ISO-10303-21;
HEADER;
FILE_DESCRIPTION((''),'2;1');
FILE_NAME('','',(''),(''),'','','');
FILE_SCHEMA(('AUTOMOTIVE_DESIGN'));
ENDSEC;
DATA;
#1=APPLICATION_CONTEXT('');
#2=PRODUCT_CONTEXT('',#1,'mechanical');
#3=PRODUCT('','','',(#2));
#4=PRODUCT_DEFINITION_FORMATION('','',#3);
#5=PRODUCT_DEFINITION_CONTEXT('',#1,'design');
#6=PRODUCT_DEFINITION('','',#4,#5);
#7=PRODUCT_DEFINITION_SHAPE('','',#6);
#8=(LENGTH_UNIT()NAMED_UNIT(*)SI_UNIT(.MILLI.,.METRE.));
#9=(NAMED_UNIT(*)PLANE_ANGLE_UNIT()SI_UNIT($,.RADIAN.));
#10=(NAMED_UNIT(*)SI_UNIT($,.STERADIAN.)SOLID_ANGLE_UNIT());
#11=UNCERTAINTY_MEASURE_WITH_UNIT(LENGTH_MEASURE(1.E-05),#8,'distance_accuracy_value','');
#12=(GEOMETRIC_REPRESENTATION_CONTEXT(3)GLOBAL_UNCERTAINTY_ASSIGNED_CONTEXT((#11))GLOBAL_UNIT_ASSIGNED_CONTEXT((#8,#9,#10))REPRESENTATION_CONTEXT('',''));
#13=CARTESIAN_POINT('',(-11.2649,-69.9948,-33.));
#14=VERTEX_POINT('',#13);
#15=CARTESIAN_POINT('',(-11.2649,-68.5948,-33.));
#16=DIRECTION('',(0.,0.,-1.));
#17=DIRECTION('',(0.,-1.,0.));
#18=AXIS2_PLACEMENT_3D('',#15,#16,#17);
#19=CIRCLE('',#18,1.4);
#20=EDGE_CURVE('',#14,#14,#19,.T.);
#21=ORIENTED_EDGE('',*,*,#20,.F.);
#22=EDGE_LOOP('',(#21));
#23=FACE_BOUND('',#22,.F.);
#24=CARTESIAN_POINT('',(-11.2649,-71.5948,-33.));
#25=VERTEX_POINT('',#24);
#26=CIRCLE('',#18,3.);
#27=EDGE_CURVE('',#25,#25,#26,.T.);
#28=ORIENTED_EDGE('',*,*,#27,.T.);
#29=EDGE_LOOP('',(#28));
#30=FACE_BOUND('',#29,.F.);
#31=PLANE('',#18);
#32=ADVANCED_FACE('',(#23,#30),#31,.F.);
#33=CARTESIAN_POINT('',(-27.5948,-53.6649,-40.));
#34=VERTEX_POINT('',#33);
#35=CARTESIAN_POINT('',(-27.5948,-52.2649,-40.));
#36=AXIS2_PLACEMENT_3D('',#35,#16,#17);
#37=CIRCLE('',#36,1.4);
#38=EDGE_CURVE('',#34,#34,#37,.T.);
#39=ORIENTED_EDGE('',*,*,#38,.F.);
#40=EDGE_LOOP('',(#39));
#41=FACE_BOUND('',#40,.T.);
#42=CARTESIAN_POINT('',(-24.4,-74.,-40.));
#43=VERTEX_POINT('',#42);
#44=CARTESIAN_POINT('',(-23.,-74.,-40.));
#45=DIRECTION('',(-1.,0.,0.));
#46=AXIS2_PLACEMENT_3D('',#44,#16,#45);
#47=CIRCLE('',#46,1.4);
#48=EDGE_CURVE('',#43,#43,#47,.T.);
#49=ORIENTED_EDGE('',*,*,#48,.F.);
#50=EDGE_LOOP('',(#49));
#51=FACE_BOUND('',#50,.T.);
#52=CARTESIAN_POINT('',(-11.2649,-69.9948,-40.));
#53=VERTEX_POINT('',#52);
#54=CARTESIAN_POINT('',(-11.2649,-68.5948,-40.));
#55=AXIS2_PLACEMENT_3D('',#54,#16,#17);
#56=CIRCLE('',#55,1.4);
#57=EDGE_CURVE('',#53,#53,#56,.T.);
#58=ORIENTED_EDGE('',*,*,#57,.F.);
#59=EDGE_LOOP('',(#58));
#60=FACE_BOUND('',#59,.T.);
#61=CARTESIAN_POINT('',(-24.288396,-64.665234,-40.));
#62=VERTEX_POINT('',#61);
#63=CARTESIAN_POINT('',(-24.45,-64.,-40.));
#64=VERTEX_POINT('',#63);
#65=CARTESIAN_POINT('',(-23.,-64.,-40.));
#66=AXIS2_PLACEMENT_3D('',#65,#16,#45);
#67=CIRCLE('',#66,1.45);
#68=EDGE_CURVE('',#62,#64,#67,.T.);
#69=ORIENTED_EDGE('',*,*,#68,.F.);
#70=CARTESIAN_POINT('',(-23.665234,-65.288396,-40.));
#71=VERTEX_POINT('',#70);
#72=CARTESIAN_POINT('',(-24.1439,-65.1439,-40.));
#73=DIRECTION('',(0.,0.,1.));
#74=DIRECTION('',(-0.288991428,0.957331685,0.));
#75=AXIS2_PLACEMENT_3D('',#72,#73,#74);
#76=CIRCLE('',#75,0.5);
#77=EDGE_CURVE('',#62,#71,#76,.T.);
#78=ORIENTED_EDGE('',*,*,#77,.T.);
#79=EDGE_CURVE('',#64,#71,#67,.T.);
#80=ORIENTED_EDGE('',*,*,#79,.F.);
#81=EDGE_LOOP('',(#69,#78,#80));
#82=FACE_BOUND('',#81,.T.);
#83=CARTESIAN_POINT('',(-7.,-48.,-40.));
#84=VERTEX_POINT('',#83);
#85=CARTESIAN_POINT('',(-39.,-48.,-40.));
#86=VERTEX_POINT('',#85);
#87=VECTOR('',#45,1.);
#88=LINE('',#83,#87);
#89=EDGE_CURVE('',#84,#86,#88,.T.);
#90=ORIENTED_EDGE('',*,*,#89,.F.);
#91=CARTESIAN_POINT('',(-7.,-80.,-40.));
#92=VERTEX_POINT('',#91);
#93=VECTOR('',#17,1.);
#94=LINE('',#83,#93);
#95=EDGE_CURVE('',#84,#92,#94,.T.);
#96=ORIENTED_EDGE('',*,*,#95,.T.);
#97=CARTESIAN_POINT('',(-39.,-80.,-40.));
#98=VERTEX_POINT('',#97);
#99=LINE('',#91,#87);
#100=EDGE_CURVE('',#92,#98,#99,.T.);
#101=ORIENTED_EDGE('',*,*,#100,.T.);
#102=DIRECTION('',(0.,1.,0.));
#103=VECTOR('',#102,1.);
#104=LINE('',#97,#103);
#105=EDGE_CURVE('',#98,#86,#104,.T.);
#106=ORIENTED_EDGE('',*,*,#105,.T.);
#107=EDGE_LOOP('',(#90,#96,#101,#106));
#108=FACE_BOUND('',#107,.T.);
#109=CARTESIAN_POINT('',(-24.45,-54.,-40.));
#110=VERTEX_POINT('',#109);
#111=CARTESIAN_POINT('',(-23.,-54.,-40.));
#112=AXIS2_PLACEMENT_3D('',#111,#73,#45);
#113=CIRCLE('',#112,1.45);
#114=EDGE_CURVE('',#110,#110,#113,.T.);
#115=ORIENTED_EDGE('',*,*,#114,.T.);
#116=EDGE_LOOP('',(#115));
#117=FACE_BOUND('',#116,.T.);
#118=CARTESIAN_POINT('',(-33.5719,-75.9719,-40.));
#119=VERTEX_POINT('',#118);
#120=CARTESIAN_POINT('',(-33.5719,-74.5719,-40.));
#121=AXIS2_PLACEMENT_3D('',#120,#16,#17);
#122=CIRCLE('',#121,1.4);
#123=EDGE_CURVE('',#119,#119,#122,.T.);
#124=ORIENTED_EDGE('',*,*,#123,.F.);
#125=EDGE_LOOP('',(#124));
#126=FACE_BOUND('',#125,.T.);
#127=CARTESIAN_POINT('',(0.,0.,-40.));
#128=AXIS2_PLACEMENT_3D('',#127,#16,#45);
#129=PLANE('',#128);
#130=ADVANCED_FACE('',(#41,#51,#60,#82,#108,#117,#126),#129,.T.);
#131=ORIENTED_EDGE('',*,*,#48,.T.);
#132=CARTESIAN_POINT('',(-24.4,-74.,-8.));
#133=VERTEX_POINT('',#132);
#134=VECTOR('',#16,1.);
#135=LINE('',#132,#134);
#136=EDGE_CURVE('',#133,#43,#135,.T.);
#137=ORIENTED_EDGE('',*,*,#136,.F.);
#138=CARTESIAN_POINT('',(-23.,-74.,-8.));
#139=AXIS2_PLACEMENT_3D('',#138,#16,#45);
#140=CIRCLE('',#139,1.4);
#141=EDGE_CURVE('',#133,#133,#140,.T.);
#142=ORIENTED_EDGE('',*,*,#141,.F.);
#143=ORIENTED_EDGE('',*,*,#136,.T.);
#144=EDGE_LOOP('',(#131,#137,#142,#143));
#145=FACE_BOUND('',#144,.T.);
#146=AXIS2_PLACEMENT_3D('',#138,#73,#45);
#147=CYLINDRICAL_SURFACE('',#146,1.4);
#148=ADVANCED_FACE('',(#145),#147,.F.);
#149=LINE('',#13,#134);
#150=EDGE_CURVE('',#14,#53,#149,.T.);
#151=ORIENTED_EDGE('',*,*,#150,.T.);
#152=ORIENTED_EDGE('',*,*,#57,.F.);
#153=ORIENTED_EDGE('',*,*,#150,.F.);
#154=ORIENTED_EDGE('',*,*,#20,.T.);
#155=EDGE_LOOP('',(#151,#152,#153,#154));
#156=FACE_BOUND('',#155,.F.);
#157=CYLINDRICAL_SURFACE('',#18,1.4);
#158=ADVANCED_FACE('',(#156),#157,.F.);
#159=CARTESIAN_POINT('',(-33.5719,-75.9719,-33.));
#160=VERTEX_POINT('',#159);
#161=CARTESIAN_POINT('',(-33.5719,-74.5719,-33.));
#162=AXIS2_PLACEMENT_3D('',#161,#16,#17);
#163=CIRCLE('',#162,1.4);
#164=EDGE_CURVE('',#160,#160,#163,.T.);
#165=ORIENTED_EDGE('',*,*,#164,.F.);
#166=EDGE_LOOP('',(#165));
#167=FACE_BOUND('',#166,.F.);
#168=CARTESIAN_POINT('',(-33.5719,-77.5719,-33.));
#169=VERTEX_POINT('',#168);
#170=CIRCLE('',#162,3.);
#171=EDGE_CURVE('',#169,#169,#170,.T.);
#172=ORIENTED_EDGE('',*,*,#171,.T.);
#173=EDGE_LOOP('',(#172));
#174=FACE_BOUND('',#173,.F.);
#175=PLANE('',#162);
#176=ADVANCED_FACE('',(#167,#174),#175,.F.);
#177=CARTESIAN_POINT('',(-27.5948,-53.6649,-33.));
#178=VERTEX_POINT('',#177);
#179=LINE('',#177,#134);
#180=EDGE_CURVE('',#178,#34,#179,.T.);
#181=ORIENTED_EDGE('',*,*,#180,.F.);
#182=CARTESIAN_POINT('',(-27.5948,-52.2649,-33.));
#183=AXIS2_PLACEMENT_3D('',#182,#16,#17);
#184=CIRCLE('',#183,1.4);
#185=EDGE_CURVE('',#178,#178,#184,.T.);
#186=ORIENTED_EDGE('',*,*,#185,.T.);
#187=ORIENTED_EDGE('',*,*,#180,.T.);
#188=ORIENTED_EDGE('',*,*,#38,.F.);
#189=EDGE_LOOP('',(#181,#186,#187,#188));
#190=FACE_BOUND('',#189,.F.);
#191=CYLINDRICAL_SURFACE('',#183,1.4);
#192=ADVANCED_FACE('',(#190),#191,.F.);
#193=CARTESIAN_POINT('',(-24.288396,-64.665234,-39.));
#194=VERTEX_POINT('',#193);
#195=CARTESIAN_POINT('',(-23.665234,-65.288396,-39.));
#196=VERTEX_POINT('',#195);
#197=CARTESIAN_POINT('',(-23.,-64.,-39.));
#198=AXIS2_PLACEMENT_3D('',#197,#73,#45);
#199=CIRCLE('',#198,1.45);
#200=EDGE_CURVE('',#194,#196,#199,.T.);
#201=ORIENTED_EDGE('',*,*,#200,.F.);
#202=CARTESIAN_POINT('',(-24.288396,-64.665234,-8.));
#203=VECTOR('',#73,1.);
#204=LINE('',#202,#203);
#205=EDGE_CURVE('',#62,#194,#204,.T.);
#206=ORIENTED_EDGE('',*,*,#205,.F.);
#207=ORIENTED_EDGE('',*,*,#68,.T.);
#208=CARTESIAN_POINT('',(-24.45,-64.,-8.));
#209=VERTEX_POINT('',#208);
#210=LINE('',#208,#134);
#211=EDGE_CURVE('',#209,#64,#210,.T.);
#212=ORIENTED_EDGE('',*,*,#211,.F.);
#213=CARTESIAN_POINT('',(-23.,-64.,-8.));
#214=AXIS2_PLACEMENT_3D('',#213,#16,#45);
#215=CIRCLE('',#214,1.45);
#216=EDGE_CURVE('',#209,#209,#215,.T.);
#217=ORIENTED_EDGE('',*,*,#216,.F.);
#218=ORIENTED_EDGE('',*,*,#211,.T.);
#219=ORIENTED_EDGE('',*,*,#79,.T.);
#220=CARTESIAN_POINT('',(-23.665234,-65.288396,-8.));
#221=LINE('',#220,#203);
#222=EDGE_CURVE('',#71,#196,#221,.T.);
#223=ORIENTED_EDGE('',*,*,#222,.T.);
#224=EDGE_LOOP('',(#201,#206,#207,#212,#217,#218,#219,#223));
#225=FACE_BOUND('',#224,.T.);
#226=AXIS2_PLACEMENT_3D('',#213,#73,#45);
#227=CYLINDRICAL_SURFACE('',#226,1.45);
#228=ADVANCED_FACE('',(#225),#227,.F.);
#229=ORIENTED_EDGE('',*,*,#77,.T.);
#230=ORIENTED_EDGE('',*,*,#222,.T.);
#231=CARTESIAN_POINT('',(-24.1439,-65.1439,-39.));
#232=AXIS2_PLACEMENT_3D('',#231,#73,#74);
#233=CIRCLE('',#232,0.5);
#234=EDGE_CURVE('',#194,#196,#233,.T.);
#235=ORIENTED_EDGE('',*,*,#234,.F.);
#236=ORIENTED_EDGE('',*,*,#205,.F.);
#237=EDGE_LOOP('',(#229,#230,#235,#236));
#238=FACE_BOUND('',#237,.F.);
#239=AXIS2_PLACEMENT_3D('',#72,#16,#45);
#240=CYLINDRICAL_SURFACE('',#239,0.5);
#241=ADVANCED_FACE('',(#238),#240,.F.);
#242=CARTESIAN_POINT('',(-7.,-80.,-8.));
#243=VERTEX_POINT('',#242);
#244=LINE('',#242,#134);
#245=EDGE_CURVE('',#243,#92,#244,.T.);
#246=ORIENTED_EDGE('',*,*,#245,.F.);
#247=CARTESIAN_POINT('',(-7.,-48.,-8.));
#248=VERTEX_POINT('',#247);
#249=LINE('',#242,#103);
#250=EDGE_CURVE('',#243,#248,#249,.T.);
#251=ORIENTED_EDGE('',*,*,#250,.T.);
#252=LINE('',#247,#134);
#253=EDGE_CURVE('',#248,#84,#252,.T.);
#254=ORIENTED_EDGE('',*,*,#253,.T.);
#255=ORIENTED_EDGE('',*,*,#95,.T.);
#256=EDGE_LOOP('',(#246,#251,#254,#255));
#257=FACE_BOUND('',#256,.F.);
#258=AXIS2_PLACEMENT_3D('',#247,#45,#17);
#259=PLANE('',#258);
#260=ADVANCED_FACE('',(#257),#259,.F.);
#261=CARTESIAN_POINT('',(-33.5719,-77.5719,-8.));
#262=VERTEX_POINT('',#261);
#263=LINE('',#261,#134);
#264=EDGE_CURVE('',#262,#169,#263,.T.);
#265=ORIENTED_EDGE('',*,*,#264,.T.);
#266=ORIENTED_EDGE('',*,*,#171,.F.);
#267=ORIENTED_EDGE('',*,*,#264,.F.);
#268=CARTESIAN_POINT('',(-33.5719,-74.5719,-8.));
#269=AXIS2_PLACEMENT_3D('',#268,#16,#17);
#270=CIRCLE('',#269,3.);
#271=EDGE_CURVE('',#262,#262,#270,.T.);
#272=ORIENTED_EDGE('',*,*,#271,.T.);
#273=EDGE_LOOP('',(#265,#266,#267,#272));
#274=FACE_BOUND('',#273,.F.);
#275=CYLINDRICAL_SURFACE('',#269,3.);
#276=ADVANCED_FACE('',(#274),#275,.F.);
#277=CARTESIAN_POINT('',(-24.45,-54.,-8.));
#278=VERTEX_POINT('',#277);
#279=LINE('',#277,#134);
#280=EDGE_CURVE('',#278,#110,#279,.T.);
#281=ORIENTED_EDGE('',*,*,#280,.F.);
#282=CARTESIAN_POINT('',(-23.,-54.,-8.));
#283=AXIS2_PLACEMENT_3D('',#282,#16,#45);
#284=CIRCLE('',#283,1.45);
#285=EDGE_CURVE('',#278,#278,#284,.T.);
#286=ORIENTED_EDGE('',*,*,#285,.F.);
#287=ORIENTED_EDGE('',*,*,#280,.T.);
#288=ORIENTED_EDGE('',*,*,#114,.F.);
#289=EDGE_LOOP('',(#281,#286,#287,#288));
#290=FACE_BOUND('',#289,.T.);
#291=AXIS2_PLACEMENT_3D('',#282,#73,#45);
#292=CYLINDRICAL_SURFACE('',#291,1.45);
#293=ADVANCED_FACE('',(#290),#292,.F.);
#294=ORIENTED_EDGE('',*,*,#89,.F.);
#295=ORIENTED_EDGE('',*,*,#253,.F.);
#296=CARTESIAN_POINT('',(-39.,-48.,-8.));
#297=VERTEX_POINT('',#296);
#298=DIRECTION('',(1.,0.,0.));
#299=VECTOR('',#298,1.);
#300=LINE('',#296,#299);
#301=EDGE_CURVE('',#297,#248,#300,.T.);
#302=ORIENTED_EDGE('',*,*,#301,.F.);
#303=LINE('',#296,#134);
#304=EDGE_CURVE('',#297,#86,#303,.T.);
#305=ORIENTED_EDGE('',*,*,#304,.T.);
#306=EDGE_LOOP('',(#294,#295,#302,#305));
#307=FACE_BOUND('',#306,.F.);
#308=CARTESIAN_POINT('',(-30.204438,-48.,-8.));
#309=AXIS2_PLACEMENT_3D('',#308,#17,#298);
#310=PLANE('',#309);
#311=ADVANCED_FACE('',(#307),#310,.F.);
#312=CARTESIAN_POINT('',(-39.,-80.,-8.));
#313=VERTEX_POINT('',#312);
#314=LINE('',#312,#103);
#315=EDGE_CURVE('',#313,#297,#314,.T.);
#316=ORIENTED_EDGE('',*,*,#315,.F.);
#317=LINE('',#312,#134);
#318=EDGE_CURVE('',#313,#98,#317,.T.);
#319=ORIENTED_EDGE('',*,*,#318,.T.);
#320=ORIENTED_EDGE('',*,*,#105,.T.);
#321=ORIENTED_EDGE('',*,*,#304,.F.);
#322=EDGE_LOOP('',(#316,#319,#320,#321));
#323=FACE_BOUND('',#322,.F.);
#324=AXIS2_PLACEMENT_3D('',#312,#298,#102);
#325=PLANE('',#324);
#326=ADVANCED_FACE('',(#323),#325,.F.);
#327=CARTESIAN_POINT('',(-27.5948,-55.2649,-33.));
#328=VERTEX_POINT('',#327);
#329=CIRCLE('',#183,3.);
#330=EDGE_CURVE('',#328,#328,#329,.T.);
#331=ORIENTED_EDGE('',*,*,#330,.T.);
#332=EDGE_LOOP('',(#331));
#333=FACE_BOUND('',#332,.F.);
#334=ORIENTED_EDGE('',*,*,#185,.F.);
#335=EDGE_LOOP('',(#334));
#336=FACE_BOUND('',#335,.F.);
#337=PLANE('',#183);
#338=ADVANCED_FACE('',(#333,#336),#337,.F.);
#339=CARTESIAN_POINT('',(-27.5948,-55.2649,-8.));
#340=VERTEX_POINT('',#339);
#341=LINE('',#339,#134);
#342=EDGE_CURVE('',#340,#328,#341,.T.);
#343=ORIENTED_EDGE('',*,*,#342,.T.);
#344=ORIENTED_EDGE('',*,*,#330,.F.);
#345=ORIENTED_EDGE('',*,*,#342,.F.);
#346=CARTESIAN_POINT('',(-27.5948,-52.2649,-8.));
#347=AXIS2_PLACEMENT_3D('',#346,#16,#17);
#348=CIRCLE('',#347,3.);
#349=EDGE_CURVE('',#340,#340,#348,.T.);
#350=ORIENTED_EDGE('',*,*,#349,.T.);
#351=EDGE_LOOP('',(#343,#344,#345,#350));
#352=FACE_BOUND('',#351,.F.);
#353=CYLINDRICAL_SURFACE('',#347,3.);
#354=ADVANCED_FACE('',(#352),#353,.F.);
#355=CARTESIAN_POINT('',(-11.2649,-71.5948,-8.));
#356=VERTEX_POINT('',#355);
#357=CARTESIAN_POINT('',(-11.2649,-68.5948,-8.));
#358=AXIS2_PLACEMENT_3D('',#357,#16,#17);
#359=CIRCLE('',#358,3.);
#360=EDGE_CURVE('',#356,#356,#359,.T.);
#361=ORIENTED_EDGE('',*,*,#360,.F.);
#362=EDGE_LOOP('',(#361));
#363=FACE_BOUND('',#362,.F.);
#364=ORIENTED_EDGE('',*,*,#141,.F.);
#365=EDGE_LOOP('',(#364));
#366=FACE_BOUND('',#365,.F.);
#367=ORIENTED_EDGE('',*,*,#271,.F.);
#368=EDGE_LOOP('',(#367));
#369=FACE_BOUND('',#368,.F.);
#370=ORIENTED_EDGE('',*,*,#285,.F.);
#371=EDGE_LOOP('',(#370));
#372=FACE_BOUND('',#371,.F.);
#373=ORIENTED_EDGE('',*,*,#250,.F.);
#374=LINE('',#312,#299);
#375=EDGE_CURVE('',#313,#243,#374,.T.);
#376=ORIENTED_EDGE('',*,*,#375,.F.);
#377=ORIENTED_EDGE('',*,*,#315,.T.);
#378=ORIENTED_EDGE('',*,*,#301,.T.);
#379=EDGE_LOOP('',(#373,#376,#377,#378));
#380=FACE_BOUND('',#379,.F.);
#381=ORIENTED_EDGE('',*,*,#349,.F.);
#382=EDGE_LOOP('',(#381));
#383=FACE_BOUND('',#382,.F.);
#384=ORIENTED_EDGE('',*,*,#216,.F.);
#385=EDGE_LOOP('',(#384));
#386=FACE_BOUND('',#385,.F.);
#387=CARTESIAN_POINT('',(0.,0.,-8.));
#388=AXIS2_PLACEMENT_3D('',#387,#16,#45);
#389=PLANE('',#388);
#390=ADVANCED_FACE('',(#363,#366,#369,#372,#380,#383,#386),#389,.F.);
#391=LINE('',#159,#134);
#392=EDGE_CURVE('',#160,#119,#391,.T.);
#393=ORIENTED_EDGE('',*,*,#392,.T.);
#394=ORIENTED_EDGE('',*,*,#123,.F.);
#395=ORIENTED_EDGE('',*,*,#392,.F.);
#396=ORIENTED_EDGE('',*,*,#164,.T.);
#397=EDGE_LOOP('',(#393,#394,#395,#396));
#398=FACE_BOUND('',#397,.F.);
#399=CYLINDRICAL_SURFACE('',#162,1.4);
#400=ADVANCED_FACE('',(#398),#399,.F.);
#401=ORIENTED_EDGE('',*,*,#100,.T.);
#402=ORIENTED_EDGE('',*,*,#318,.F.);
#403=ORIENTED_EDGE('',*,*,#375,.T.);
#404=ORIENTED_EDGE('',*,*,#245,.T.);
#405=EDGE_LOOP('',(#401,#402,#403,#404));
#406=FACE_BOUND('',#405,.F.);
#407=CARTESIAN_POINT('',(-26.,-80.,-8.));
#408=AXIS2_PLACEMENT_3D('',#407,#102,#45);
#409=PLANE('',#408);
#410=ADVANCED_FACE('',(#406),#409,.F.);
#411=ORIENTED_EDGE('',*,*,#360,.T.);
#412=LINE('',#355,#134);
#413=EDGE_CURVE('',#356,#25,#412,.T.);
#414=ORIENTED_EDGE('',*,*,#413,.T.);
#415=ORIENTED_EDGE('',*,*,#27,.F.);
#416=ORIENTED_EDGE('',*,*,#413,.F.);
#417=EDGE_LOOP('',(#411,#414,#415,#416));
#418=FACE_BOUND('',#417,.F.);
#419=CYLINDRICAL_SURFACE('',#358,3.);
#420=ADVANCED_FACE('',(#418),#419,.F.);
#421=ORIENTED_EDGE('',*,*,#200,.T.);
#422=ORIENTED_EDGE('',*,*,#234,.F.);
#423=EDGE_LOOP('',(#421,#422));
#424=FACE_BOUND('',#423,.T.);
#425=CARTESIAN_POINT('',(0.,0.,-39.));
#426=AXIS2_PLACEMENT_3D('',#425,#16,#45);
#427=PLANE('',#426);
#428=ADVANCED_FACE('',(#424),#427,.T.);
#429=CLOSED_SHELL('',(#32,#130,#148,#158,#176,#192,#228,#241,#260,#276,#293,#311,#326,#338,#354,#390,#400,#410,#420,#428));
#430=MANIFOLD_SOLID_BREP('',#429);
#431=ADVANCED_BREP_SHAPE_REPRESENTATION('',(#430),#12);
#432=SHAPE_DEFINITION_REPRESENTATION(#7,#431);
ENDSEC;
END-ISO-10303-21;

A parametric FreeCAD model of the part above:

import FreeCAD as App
import Part
import Sketcher

V = App.Vector

doc = App.newDocument("Part")
params = doc.addObject("Spreadsheet::Sheet", "Params")
for row, (alias, value) in enumerate([
    ("sketch1_diameter", "2.8 mm"),
    ("sketch1_width", "32 mm"),
    ("sketch1_diameter2", "2.9 mm"),
    ("pad1_length", "32 mm"),
    ("sketch2_diameter", "2.8 mm"),
    ("hole_diameter", "2.8 mm"),
    ("hole_cbore_diameter", "6 mm"),
    ("hole_cbore_depth", "25 mm"),
    ("sketch3_diameter", "1 mm"),
    ("pocket1_length", "1 mm"),
], start=1):
    params.set(f"A{row}", alias)
    params.set(f"B{row}", "=" + value)
    params.setAlias(f"B{row}", alias)

body = doc.addObject("PartDesign::Body", "Body")

# Sketch on XY plane
sketch1 = doc.addObject("Sketcher::SketchObject", "Sketch")
body.addObject(sketch1)
sketch1.AttachmentSupport = (doc.XY_Plane, [""])
sketch1.MapMode = "FlatFace"
sketch1.AttachmentOffset = App.Placement(V(0, 0, -8), App.Rotation())
sketch1.addGeometry([
    Part.LineSegment(V(-7, -48, 0), V(-7, -80, 0)),  # 0
    Part.LineSegment(V(-7, -80, 0), V(-39, -80, 0)),  # 1
    Part.LineSegment(V(-39, -80, 0), V(-39, -48, 0)),  # 2
    Part.LineSegment(V(-39, -48, 0), V(-7, -48, 0)),  # 3
    Part.Circle(V(-23, -54, 0), V(0, 0, 1), 1.45),  # 4
    Part.Circle(V(-23, -64, 0), V(0, 0, 1), 1.45),  # 5
    Part.Circle(V(-23, -74, 0), V(0, 0, 1), 1.4),  # 6
], False)
sketch1.addConstraint([
    Sketcher.Constraint("Coincident", 0, 2, 1, 1),
    Sketcher.Constraint("Coincident", 1, 2, 2, 1),
    Sketcher.Constraint("Coincident", 2, 2, 3, 1),
    Sketcher.Constraint("Coincident", 3, 2, 0, 1),
    Sketcher.Constraint("Vertical", 0),
    Sketcher.Constraint("Horizontal", 1),
    Sketcher.Constraint("Vertical", 2),
    Sketcher.Constraint("Horizontal", 3),
    Sketcher.Constraint("Equal", 4, 5),
    Sketcher.Constraint("Vertical", 4, 3, 5, 3),
    Sketcher.Constraint("Vertical", 5, 3, 6, 3),
    Sketcher.Constraint("Equal", 3, 0),
    Sketcher.Constraint("Diameter", 6, 2.8),
    Sketcher.Constraint("DistanceX", 1, 2, 1, 1, 32.0),
    Sketcher.Constraint("Diameter", 4, 2.9),
    Sketcher.Constraint("DistanceX", 4, 3, -1, 1, 23.0),
    Sketcher.Constraint("DistanceY", 4, 3, -1, 1, 54.0),
    Sketcher.Constraint("DistanceY", 5, 3, -1, 1, 64.0),
    Sketcher.Constraint("DistanceY", 6, 3, -1, 1, 74.0),
    Sketcher.Constraint("DistanceX", 0, 2, -1, 1, 7.0),
    Sketcher.Constraint("DistanceY", 0, 2, -1, 1, 80.0),
])
sketch1.setExpression("Constraints[12]", "Params.sketch1_diameter")
sketch1.setExpression("Constraints[13]", "Params.sketch1_width")
sketch1.setExpression("Constraints[14]", "Params.sketch1_diameter2")
pad1 = doc.addObject("PartDesign::Pad", "Pad")
body.addObject(pad1)
pad1.Profile = sketch1
pad1.setExpression("Length", "Params.pad1_length")
pad1.Reversed = True

# Sketch on XY plane
sketch2 = doc.addObject("Sketcher::SketchObject", "Sketch001")
body.addObject(sketch2)
sketch2.AttachmentSupport = (doc.XY_Plane, [""])
sketch2.MapMode = "FlatFace"
sketch2.AttachmentOffset = App.Placement(V(0, 0, -8), App.Rotation())
sketch2.addGeometry([
    Part.Circle(V(-27.5948, -52.2649, 0), V(0, 0, 1), 1.4),
    Part.Circle(V(-11.2649, -68.5948, 0), V(0, 0, 1), 1.4),
    Part.Circle(V(-33.5719, -74.5719, 0), V(0, 0, 1), 1.4),
], False)
sketch2.addConstraint([
    Sketcher.Constraint("Equal", 0, 1),
    Sketcher.Constraint("Equal", 1, 2),
    Sketcher.Constraint("Diameter", 0, 2.8),
    Sketcher.Constraint("DistanceX", 0, 3, 1, 3, 16.33),
    Sketcher.Constraint("DistanceY", 1, 3, 0, 3, 16.33),
    Sketcher.Constraint("DistanceY", 0, 3, -1, 1, 52.265),
    Sketcher.Constraint("DistanceX", 1, 3, -1, 1, 11.265),
    Sketcher.Constraint("DistanceX", 2, 3, -1, 1, 33.572),
    Sketcher.Constraint("DistanceY", 2, 3, -1, 1, 74.572),
])
sketch2.setExpression("Constraints[2]", "Params.sketch2_diameter")
doc.recompute()
hole = doc.addObject("PartDesign::Hole", "Hole")
body.addObject(hole)
hole.Profile = sketch2
hole.ThreadType = "None"
hole.setExpression("Diameter", "Params.hole_diameter")
hole.DepthType = "ThroughAll"
hole.HoleCutType = "Counterbore"
hole.setExpression("HoleCutDiameter", "Params.hole_cbore_diameter")
hole.setExpression("HoleCutDepth", "Params.hole_cbore_depth")

# Sketch on XY plane
sketch3 = doc.addObject("Sketcher::SketchObject", "Sketch002")
body.addObject(sketch3)
sketch3.AttachmentSupport = (doc.XY_Plane, [""])
sketch3.MapMode = "FlatFace"
sketch3.AttachmentOffset = App.Placement(V(0, 0, -40), App.Rotation())
sketch3.addGeometry(Part.Circle(V(-24.1439, -65.1439, 0), V(0, 0, 1), 0.5), False)
sketch3.addConstraint([
    Sketcher.Constraint("Diameter", 0, 1.0),
    Sketcher.Constraint("DistanceX", 0, 3, -1, 1, 24.144),
    Sketcher.Constraint("DistanceY", 0, 3, -1, 1, 65.144),
])
sketch3.setExpression("Constraints[0]", "Params.sketch3_diameter")
pocket1 = doc.addObject("PartDesign::Pocket", "Pocket")
body.addObject(pocket1)
pocket1.Profile = sketch3
pocket1.setExpression("Length", "Params.pocket1_length")
pocket1.Reversed = True

doc.recompute()
